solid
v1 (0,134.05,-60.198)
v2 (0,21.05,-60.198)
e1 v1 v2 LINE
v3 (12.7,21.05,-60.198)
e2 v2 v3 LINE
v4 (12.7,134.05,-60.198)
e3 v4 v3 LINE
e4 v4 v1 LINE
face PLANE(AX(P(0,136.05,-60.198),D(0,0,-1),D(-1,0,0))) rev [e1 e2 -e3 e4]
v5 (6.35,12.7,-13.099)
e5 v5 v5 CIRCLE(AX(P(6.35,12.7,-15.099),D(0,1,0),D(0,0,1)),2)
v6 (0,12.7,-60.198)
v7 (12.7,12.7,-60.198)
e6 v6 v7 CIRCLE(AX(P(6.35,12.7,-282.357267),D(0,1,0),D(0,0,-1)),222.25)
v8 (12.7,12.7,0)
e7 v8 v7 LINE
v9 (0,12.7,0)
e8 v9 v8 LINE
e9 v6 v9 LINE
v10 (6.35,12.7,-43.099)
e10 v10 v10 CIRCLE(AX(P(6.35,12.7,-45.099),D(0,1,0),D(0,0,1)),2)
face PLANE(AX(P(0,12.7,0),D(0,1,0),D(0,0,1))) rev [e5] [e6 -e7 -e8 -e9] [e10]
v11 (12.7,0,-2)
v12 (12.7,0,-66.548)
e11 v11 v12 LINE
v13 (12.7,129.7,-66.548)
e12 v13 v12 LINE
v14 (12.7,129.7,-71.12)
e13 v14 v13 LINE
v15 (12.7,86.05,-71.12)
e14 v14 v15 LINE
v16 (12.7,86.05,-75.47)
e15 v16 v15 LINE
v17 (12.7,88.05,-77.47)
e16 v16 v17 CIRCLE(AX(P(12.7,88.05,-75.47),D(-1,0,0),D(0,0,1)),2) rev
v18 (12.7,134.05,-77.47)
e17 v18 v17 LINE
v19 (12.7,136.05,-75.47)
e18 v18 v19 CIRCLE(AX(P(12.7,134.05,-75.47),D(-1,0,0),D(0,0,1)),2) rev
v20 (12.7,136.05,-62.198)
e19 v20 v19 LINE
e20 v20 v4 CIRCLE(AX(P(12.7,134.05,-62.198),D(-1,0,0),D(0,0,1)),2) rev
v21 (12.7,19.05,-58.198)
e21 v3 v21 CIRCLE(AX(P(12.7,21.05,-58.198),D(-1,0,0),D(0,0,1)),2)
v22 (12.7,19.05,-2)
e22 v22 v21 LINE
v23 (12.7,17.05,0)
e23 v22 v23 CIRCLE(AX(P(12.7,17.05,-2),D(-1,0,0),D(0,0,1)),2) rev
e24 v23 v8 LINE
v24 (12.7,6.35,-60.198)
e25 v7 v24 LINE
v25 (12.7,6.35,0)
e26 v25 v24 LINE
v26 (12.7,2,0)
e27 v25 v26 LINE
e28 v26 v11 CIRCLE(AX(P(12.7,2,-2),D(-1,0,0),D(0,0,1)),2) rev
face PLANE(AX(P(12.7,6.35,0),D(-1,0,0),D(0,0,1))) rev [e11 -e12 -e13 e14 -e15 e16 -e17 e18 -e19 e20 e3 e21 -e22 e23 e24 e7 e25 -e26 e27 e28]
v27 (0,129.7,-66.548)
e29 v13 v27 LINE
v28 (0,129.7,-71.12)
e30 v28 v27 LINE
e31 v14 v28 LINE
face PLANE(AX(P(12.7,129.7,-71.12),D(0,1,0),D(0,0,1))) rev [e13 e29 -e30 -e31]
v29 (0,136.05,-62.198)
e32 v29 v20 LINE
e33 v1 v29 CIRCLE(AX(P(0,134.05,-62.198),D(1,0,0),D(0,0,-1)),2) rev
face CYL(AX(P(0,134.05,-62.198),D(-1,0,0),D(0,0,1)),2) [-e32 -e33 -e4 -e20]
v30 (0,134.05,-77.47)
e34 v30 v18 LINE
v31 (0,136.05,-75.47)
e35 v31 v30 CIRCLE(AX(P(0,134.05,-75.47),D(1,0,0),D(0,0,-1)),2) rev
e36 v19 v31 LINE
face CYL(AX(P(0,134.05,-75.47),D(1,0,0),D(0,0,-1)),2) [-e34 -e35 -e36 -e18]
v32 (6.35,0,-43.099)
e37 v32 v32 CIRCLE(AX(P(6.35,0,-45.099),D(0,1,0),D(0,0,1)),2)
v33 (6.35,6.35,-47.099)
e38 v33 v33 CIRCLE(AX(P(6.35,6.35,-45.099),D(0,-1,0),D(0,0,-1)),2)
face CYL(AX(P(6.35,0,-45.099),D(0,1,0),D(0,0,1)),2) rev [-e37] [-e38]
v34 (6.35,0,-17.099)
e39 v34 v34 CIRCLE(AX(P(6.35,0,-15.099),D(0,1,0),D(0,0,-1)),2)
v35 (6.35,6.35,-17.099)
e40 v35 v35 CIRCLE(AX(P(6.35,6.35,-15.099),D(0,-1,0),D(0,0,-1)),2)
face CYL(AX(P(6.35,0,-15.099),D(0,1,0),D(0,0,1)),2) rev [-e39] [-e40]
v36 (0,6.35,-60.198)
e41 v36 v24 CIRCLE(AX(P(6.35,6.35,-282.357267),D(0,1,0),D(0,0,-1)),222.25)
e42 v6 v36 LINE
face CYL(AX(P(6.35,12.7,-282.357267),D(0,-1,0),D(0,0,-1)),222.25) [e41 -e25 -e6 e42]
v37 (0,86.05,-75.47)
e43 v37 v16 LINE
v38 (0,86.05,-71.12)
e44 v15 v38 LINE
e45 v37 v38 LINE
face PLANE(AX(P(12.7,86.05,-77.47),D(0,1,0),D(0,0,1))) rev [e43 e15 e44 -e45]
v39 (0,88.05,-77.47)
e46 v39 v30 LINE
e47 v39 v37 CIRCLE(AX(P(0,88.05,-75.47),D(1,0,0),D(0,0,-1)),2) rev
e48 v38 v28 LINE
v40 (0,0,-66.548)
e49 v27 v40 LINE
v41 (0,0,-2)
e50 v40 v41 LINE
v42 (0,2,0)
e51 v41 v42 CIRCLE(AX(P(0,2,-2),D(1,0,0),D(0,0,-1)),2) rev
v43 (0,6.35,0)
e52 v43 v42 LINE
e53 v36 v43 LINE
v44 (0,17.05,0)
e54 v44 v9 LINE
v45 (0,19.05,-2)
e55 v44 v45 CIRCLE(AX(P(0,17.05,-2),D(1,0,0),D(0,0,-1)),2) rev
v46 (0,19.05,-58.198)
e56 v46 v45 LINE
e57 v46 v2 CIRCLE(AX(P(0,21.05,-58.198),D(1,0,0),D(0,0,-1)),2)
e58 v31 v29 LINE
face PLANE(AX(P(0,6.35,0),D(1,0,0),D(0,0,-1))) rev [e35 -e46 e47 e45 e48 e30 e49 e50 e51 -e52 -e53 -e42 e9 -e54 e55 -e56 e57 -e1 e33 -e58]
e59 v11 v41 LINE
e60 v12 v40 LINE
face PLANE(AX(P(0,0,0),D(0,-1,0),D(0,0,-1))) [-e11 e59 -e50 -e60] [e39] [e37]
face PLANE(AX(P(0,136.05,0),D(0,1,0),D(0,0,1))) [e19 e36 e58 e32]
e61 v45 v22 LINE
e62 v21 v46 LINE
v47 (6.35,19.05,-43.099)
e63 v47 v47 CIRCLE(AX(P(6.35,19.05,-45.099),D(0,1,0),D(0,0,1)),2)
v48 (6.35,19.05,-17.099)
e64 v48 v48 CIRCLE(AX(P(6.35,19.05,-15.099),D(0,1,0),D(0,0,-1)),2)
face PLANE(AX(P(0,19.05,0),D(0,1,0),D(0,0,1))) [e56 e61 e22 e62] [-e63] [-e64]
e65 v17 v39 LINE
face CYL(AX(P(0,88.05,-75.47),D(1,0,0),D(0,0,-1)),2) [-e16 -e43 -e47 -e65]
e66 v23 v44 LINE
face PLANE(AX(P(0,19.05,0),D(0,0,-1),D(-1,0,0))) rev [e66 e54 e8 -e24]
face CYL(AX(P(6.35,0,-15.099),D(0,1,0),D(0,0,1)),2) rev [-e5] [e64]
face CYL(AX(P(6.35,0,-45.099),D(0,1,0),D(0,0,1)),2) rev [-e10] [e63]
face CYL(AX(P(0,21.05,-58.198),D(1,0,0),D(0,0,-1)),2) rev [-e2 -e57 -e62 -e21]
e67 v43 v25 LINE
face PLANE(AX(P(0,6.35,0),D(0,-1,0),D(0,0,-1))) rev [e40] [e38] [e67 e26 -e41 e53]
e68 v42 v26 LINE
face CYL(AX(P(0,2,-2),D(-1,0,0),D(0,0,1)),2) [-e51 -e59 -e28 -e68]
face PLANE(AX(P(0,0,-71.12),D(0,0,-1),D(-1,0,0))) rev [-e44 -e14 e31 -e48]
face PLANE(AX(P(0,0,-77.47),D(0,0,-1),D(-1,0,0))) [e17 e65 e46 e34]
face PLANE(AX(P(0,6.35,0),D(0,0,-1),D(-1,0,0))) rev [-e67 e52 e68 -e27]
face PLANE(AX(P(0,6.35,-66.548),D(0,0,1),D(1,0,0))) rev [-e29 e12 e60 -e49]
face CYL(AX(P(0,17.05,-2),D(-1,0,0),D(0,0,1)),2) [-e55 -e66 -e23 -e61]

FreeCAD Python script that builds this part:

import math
import FreeCAD as App
import Part
import Sketcher
from FreeCAD import Vector
Q = App.Units.Quantity


def edges_at(feature, points):
    """Names of the edges that pass closest to the given points."""
    edges = feature.Shape.Edges
    near = lambda p: min(range(len(edges)), key=lambda i: edges[i].distToShape(Part.Vertex(*p))[0])
    return sorted({f"Edge{near(p) + 1}" for p in points})


def add_polygon(sketch, points):
    """Adds a closed chain of lines whose ends are joined by coincident constraints."""
    first, n = sketch.GeometryCount, len(points)
    for a, b in zip(points, points[1:] + points[:1]):
        sketch.addGeometry(Part.LineSegment(App.Vector(*a, 0), App.Vector(*b, 0)), False)
    for i in range(n):
        sketch.addConstraint(Sketcher.Constraint("Coincident", first + i, 2, first + (i + 1) % n, 1))

doc = App.newDocument("Part")
params = doc.addObject("Spreadsheet::Sheet", "Params")
for row, (alias, value) in enumerate([
    ("sketch1_width", "0.5 in"),
    ("sketch1_height", "2.62 in"),
    ("pad1_length", "0.25 in"),
    ("sketch2_width", "0.5 in"),
    ("sketch2_height", "0.25 in"),
    ("pad2_length", "0.25 in"),
    ("sketch3_width", "0.5 in"),
    ("sketch3_height", "2.62 in"),
    ("pad3_length", "0.25 in"),
    ("sketch4_width", "0.5 in"),
    ("sketch4_height", "0.25 in"),
    ("pad4_length", "117 mm"),
    ("sketch5_width", "0.5 in"),
    ("sketch5_height", "0.25 in"),
    ("pad5_length", "0.18 in"),
    ("sketch6_width", "0.5 in"),
    ("pad6_length", "0.25 in"),
    ("sketch7_radius", "8.75 in"),
    ("sketch7_width", "0.5 in"),
    ("pad7_length", "0.25 in"),
    ("fillet_radius", "2 mm"),
    ("fillet2_radius", "2 mm"),
], start=1):
    params.set(f"A{row}", alias)
    params.set(f"B{row}", "=" + value)
    params.setAlias(f"B{row}", alias)

body = doc.addObject("PartDesign::Body", "Body")

# Sketch on XZ plane
sketch1 = doc.addObject("Sketcher::SketchObject", "Sketch")
body.addObject(sketch1)
sketch1.AttachmentSupport = (doc.XZ_Plane, [""])
sketch1.MapMode = "FlatFace"
add_polygon(sketch1, [(0, -67), (0, 0), (13, 0), (13, -67)])  # lines 0-3
sketch1.addConstraint([
    Sketcher.Constraint("Vertical", 0),
    Sketcher.Constraint("Horizontal", 1),
    Sketcher.Constraint("Vertical", 2),
    Sketcher.Constraint("Horizontal", 3),
    Sketcher.Constraint("Coincident", 0, 2, -1, 1),
    Sketcher.Constraint("DistanceX", 1, 1, 1, 2, Q("0.5 in")),
    Sketcher.Constraint("DistanceY", 0, 1, 0, 2, Q("2.62 in")),
])
sketch1.setExpression("Constraints[9]", "Params.sketch1_width")
sketch1.setExpression("Constraints[10]", "Params.sketch1_height")
pad1 = doc.addObject("PartDesign::Pad", "Pad")
body.addObject(pad1)
pad1.Profile = sketch1
pad1.setExpression("Length", "Params.pad1_length")
pad1.Reversed = True

# Sketch on XZ plane
sketch2 = doc.addObject("Sketcher::SketchObject", "Sketch001")
body.addObject(sketch2)
sketch2.AttachmentSupport = (doc.XZ_Plane, [""])
sketch2.MapMode = "FlatFace"
sketch2.AttachmentOffset = App.Placement(Vector(0, 0, -0.25 * 25.4), App.Rotation())
add_polygon(sketch2, [(0, -67), (0, -60), (13, -60), (13, -67)])  # lines 0-3
sketch2.addConstraint([
    Sketcher.Constraint("Vertical", 0),
    Sketcher.Constraint("Horizontal", 1),
    Sketcher.Constraint("Vertical", 2),
    Sketcher.Constraint("Horizontal", 3),
    Sketcher.Constraint("PointOnObject", 0, 2, -2),
    Sketcher.Constraint("DistanceX", 1, 1, 1, 2, Q("0.5 in")),
    Sketcher.Constraint("DistanceY", 0, 1, 0, 2, Q("0.25 in")),
    Sketcher.Constraint("DistanceY", 0, 2, -1, 1, Q("2.37 in")),
])
sketch2.setExpression("Constraints[9]", "Params.sketch2_width")
sketch2.setExpression("Constraints[10]", "Params.sketch2_height")
pad2 = doc.addObject("PartDesign::Pad", "Pad001")
body.addObject(pad2)
pad2.Profile = sketch2
pad2.setExpression("Length", "Params.pad2_length")
pad2.Reversed = True

# Sketch on XZ plane
sketch3 = doc.addObject("Sketcher::SketchObject", "Sketch002")
body.addObject(sketch3)
sketch3.AttachmentSupport = (doc.XZ_Plane, [""])
sketch3.MapMode = "FlatFace"
sketch3.AttachmentOffset = App.Placement(Vector(0, 0, -0.5 * 25.4), App.Rotation())
add_polygon(sketch3, [(0, -67), (0, 0), (13, 0), (13, -67)])  # lines 0-3
sketch3.addConstraint([
    Sketcher.Constraint("Vertical", 0),
    Sketcher.Constraint("Horizontal", 1),
    Sketcher.Constraint("Vertical", 2),
    Sketcher.Constraint("Horizontal", 3),
    Sketcher.Constraint("Coincident", 0, 2, -1, 1),
    Sketcher.Constraint("DistanceX", 1, 1, 1, 2, Q("0.5 in")),
    Sketcher.Constraint("DistanceY", 0, 1, 0, 2, Q("2.62 in")),
])
sketch3.setExpression("Constraints[9]", "Params.sketch3_width")
sketch3.setExpression("Constraints[10]", "Params.sketch3_height")
pad3 = doc.addObject("PartDesign::Pad", "Pad002")
body.addObject(pad3)
pad3.Profile = sketch3
pad3.setExpression("Length", "Params.pad3_length")
pad3.Reversed = True

# Sketch on XZ plane
sketch4 = doc.addObject("Sketcher::SketchObject", "Sketch003")
body.addObject(sketch4)
sketch4.AttachmentSupport = (doc.XZ_Plane, [""])
sketch4.MapMode = "FlatFace"
sketch4.AttachmentOffset = App.Placement(Vector(0, 0, -0.75 * 25.4), App.Rotation())
add_polygon(sketch4, [(0, -67), (0, -60), (13, -60), (13, -67)])  # lines 0-3
sketch4.addConstraint([
    Sketcher.Constraint("Vertical", 0),
    Sketcher.Constraint("Horizontal", 1),
    Sketcher.Constraint("Vertical", 2),
    Sketcher.Constraint("Horizontal", 3),
    Sketcher.Constraint("PointOnObject", 0, 2, -2),
    Sketcher.Constraint("DistanceX", 1, 1, 1, 2, Q("0.5 in")),
    Sketcher.Constraint("DistanceY", 0, 1, 0, 2, Q("0.25 in")),
    Sketcher.Constraint("DistanceY", 0, 2, -1, 1, Q("2.37 in")),
])
sketch4.setExpression("Constraints[9]", "Params.sketch4_width")
sketch4.setExpression("Constraints[10]", "Params.sketch4_height")
pad4 = doc.addObject("PartDesign::Pad", "Pad003")
body.addObject(pad4)
pad4.Profile = sketch4
pad4.setExpression("Length", "Params.pad4_length")
pad4.Reversed = True

# Sketch on XY plane
sketch5 = doc.addObject("Sketcher::SketchObject", "Sketch004")
body.addObject(sketch5)
sketch5.AttachmentSupport = (doc.XY_Plane, [""])
sketch5.MapMode = "FlatFace"
sketch5.AttachmentOffset = App.Placement(Vector(0, 0, -2.62 * 25.4), App.Rotation())
add_polygon(sketch5, [(13, 136), (13, 130), (0, 130), (0, 136)])  # lines 0-3
sketch5.addConstraint([
    Sketcher.Constraint("Vertical", 0),
    Sketcher.Constraint("Horizontal", 1),
    Sketcher.Constraint("Vertical", 2),
    Sketcher.Constraint("Horizontal", 3),
    Sketcher.Constraint("PointOnObject", 1, 2, -2),
    Sketcher.Constraint("DistanceX", 1, 2, 1, 1, Q("0.5 in")),
    Sketcher.Constraint("DistanceY", 0, 2, 0, 1, Q("0.25 in")),
    Sketcher.Constraint("DistanceY", -1, 1, 0, 2, 129.7),
])
sketch5.setExpression("Constraints[9]", "Params.sketch5_width")
sketch5.setExpression("Constraints[10]", "Params.sketch5_height")
pad5 = doc.addObject("PartDesign::Pad", "Pad004")
body.addObject(pad5)
pad5.Profile = sketch5
pad5.setExpression("Length", "Params.pad5_length")
pad5.Reversed = True

# Sketch on XY plane
sketch6 = doc.addObject("Sketcher::SketchObject", "Sketch005")
body.addObject(sketch6)
sketch6.AttachmentSupport = (doc.XY_Plane, [""])
sketch6.MapMode = "FlatFace"
sketch6.AttachmentOffset = App.Placement(Vector(0, 0, -2.8 * 25.4), App.Rotation())
add_polygon(sketch6, [(13, 136), (13, 86), (0, 86), (0, 136)])  # lines 0-3
sketch6.addConstraint([
    Sketcher.Constraint("Vertical", 0),
    Sketcher.Constraint("Horizontal", 1),
    Sketcher.Constraint("Vertical", 2),
    Sketcher.Constraint("Horizontal", 3),
    Sketcher.Constraint("PointOnObject", 1, 2, -2),
    Sketcher.Constraint("DistanceX", 1, 2, 1, 1, Q("0.5 in")),
    Sketcher.Constraint("DistanceY", 0, 2, 0, 1, 50.0),
    Sketcher.Constraint("DistanceY", -1, 1, 0, 2, 86.05),
])
sketch6.setExpression("Constraints[9]", "Params.sketch6_width")
pad6 = doc.addObject("PartDesign::Pad", "Pad005")
body.addObject(pad6)
pad6.Profile = sketch6
pad6.setExpression("Length", "Params.pad6_length")
pad6.Reversed = True

# Sketch on XZ plane
sketch7 = doc.addObject("Sketcher::SketchObject", "Sketch006")
body.addObject(sketch7)
sketch7.AttachmentSupport = (doc.XZ_Plane, [""])
sketch7.MapMode = "FlatFace"
sketch7.AttachmentOffset = App.Placement(Vector(0, 0, -0.25 * 25.4), App.Rotation())
sketch7.addGeometry([
    Part.LineSegment(Vector(13, -60, 0), Vector(0, -60, 0)),
    Part.ArcOfCircle(Part.Circle(Vector(6, -282, 0), Vector(0, 0, 1), 222), math.radians(88.36), math.radians(91.64)),
], False)
sketch7.addConstraint([
    Sketcher.Constraint("Coincident", 0, 1, 1, 1),
    Sketcher.Constraint("Coincident", 1, 2, 0, 2),
    Sketcher.Constraint("Horizontal", 0),
    Sketcher.Constraint("PointOnObject", 1, 2, -2),
    Sketcher.Constraint("Radius", 1, Q("8.75 in")),
    Sketcher.Constraint("DistanceX", 0, 2, 0, 1, Q("0.5 in")),
    Sketcher.Constraint("DistanceY", 0, 1, -1, 1, Q("2.37 in")),
])
sketch7.setExpression("Constraints[4]", "Params.sketch7_radius")
sketch7.setExpression("Constraints[5]", "Params.sketch7_width")
pad7 = doc.addObject("PartDesign::Pad", "Pad006")
body.addObject(pad7)
pad7.Profile = sketch7
pad7.setExpression("Length", "Params.pad7_length")
pad7.Reversed = True

# Sketch on XZ plane
sketch8 = doc.addObject("Sketcher::SketchObject", "Sketch007")
body.addObject(sketch8)
sketch8.AttachmentSupport = (doc.XZ_Plane, [""])
sketch8.MapMode = "FlatFace"
sketch8.AttachmentOffset = App.Placement(Vector(0, 0, -0.75 * 25.4), App.Rotation())
sketch8.addGeometry([
    Part.Circle(Vector(6.3, -45.1, 0), Vector(0, 0, 1), 2),
    Part.Circle(Vector(6.3, -15.1, 0), Vector(0, 0, 1), 2),
], False)
sketch8.addConstraint([
    Sketcher.Constraint("Equal", 0, 1),
    Sketcher.Constraint("Vertical", 0, 3, 1, 3),
    Sketcher.Constraint("Diameter", 0, 4.0),
    Sketcher.Constraint("DistanceX", -1, 1, 0, 3, Q("0.25 in")),
    Sketcher.Constraint("DistanceY", 0, 3, -1, 1, 45.099),
    Sketcher.Constraint("DistanceY", 1, 3, -1, 1, 15.099),
])
pocket1 = doc.addObject("PartDesign::Pocket", "Pocket")
body.addObject(pocket1)
pocket1.Profile = sketch8
pocket1.Type = "ThroughAll"
pocket1.Reversed = True
doc.recompute()

fillet = doc.addObject("PartDesign::Fillet", "Fillet")
body.addObject(fillet)
fillet.Base = (pocket1, edges_at(pocket1, [
    (6.35, 19.05, 0),
    (6.35, 136.05, -60.198),
    (6.35, 0, 0),
    (6.35, 86.05, -77.47),
    (6.35, 136.05, -77.47),
]))
fillet.setExpression("Radius", "Params.fillet_radius")
doc.recompute()

fillet2 = doc.addObject("PartDesign::Fillet", "Fillet001")
body.addObject(fillet2)
fillet2.Base = (fillet, edges_at(fillet, [(6.35, 19.05, -60.198)]))
fillet2.setExpression("Radius", "Params.fillet2_radius")

doc.recompute()
